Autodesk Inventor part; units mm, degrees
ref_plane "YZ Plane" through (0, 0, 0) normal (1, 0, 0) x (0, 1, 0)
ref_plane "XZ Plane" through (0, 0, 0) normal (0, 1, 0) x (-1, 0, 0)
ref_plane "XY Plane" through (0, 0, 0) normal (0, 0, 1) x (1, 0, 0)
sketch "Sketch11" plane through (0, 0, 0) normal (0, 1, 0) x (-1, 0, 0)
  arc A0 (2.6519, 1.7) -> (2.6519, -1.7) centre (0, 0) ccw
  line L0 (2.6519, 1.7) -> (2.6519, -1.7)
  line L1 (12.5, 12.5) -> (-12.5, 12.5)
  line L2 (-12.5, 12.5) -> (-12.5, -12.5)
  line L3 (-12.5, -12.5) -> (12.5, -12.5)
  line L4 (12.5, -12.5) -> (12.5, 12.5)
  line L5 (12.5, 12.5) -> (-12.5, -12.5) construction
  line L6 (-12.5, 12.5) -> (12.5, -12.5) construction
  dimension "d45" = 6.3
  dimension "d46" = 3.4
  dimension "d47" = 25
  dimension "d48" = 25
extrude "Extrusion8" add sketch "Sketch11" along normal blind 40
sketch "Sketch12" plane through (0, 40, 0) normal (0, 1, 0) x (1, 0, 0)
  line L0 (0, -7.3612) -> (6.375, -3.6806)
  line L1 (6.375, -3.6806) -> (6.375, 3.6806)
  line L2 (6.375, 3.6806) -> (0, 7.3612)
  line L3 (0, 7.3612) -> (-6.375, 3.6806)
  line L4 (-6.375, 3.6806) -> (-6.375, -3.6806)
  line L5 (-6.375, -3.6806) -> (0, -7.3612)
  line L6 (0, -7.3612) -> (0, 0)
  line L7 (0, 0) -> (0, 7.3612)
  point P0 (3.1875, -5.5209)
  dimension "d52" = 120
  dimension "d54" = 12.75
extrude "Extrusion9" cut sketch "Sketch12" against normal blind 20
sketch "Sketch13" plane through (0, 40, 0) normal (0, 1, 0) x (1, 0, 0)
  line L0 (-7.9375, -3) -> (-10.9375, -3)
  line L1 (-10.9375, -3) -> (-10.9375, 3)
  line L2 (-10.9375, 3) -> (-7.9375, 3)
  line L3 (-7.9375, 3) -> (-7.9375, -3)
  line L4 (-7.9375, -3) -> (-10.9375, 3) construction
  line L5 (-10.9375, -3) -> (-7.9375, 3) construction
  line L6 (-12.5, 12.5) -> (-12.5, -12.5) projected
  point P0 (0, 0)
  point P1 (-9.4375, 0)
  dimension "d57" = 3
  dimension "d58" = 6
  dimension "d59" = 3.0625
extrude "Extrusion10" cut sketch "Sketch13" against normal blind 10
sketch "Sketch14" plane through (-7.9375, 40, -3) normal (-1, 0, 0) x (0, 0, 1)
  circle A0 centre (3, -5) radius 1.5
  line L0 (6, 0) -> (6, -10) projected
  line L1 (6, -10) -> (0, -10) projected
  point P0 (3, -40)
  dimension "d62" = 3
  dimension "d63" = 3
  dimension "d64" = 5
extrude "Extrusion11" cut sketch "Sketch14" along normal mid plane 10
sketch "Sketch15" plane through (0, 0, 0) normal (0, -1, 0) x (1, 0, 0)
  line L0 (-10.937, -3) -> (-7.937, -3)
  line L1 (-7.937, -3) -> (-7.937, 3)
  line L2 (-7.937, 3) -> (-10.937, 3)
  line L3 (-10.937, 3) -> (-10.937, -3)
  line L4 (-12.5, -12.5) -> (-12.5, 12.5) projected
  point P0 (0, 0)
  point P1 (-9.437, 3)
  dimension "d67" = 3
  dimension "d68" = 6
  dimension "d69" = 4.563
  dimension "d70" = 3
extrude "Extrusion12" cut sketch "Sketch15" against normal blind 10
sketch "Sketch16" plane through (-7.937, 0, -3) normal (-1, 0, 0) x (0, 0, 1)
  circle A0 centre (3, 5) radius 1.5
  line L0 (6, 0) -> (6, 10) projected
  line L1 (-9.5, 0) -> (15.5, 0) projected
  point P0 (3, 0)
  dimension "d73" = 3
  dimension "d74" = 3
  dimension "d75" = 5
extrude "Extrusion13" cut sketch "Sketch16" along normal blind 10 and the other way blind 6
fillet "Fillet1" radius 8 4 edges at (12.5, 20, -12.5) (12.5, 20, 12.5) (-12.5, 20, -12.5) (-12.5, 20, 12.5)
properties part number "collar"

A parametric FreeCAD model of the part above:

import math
import FreeCAD as App
import Part
import Sketcher
from FreeCAD import Vector
Q = App.Units.Quantity


def edges_at(feature, points):
    """Names of the edges that pass closest to the given points."""
    edges = feature.Shape.Edges
    near = lambda p: min(range(len(edges)), key=lambda i: edges[i].distToShape(Part.Vertex(*p))[0])
    return sorted({f"Edge{near(p) + 1}" for p in points})


def add_polygon(sketch, points):
    """Adds a closed chain of lines whose ends are joined by coincident constraints."""
    first, n = sketch.GeometryCount, len(points)
    for a, b in zip(points, points[1:] + points[:1]):
        sketch.addGeometry(Part.LineSegment(App.Vector(*a, 0), App.Vector(*b, 0)), False)
    for i in range(n):
        sketch.addConstraint(Sketcher.Constraint("Coincident", first + i, 2, first + (i + 1) % n, 1))

doc = App.newDocument("Part")
body = doc.addObject("PartDesign::Body", "Body")

# Sketch on XZ plane
sketch1 = body.newObject("Sketcher::SketchObject", "Sketch")
sketch1.AttachmentSupport = (doc.getObject("XZ_Plane"), [""])
sketch1.MapMode = "FlatFace"
add_polygon(sketch1, [(-12.5, -12.5), (-12.5, 12.5), (12.5, 12.5), (12.5, -12.5)])  # lines 0-3
sketch1.addGeometry(Part.ArcOfCircle(Part.Circle(Vector(0, 0, 0), Vector(0, 0, 1), 3.2), math.radians(-147), math.radians(147)), False)  # 4
sketch1.addGeometry(Part.LineSegment(Vector(-2.7, 1.7, 0), Vector(-2.7, -1.7, 0)), False)  # 5
sketch1.addConstraint([
    Sketcher.Constraint("Coincident", 4, 1, 5, 2),
    Sketcher.Constraint("Coincident", 5, 1, 4, 2),
    Sketcher.Constraint("Vertical", 0),
    Sketcher.Constraint("Horizontal", 1),
    Sketcher.Constraint("Vertical", 2),
    Sketcher.Constraint("Horizontal", 3),
    Sketcher.Constraint("Vertical", 5),
    Sketcher.Constraint("Coincident", 4, 3, -1, 1),
    Sketcher.Constraint("Symmetric", 0, 2, 2, 2, -1, 1),
    Sketcher.Constraint("Equal", 3, 0),
    Sketcher.Constraint("DistanceX", 1, 1, 1, 2, 25.0),
    Sketcher.Constraint("Radius", 4, 3.15),
    Sketcher.Constraint("DistanceY", 5, 2, 5, 1, 3.4),
])
pad1 = body.newObject("PartDesign::Pad", "Pad")
pad1.Profile = sketch1
pad1.Length = 40
pad1.Reversed = True

# Sketch on XZ plane
sketch2 = body.newObject("Sketcher::SketchObject", "Sketch001")
sketch2.AttachmentSupport = (doc.getObject("XZ_Plane"), [""])
sketch2.MapMode = "FlatFace"
sketch2.AttachmentOffset = App.Placement(Vector(0, 0, -40), App.Rotation())
add_polygon(sketch2, [(6, -4), (0, -7), (-6, -4), (-6, 4), (0, 7), (6, 4)])  # lines 0-5
sketch2.addConstraint([
    Sketcher.Constraint("Vertical", 2),
    Sketcher.Constraint("Vertical", 5),
    Sketcher.Constraint("Symmetric", 0, 2, 3, 2, -1, 1),
    Sketcher.Constraint("Symmetric", 1, 2, 4, 2, -1, 1),
    Sketcher.Constraint("PointOnObject", 0, 2, -2),
    Sketcher.Constraint("Parallel", 0, 3),
    Sketcher.Constraint("Horizontal", 2, 2, 4, 2),
    Sketcher.Constraint("Angle", 0, Q("-150 deg")),
    Sketcher.Constraint("DistanceX", 2, 2, 4, 2, 12.75),
    Sketcher.Constraint("DistanceY", 2, 1, 2, 2, 7.3612),
])
pocket1 = body.newObject("PartDesign::Pocket", "Pocket")
pocket1.Profile = sketch2
pocket1.Length = 20
pocket1.Reversed = True

# Sketch on XZ plane
sketch3 = body.newObject("Sketcher::SketchObject", "Sketch002")
sketch3.AttachmentSupport = (doc.getObject("XZ_Plane"), [""])
sketch3.MapMode = "FlatFace"
sketch3.AttachmentOffset = App.Placement(Vector(0, 0, -40), App.Rotation())
add_polygon(sketch3, [(-10.9, 3), (-7.9, 3), (-7.9, -3), (-10.9, -3)])  # lines 0-3
sketch3.addConstraint([
    Sketcher.Constraint("Horizontal", 0),
    Sketcher.Constraint("Vertical", 1),
    Sketcher.Constraint("Horizontal", 2),
    Sketcher.Constraint("Vertical", 3),
    Sketcher.Constraint("DistanceX", 0, 1, 0, 2, 3.0),
    Sketcher.Constraint("DistanceY", 1, 2, 1, 1, 6.0),
    Sketcher.Constraint("DistanceY", -1, 1, 0, 2, 3.0),
    Sketcher.Constraint("DistanceX", 0, 2, -1, 1, 7.9375),
])
pocket2 = body.newObject("PartDesign::Pocket", "Pocket001")
pocket2.Profile = sketch3
pocket2.Length = 10
pocket2.Reversed = True

# Sketch on YZ plane
sketch4 = body.newObject("Sketcher::SketchObject", "Sketch003")
sketch4.AttachmentSupport = (doc.getObject("YZ_Plane"), [""])
sketch4.MapMode = "FlatFace"
sketch4.AttachmentOffset = App.Placement(Vector(0, 0, -7.9375), App.Rotation())
sketch4.addGeometry(Part.Circle(Vector(35, 0, 0), Vector(0, 0, 1), 1.5), False)
sketch4.addConstraint([
    Sketcher.Constraint("PointOnObject", 0, 3, -1),
    Sketcher.Constraint("Diameter", 0, 3.0),
    Sketcher.Constraint("DistanceX", -1, 1, 0, 3, 35.0),
])
pocket3 = body.newObject("PartDesign::Pocket", "Pocket002")
pocket3.Profile = sketch4
pocket3.Length = 10
pocket3.Midplane = True

# Sketch on XZ plane
sketch5 = body.newObject("Sketcher::SketchObject", "Sketch004")
sketch5.AttachmentSupport = (doc.getObject("XZ_Plane"), [""])
sketch5.MapMode = "FlatFace"
add_polygon(sketch5, [(-10.9, 3), (-10.9, -3), (-7.9, -3), (-7.9, 3)])  # lines 0-3
sketch5.addConstraint([
    Sketcher.Constraint("Vertical", 0),
    Sketcher.Constraint("Horizontal", 1),
    Sketcher.Constraint("Vertical", 2),
    Sketcher.Constraint("Horizontal", 3),
    Sketcher.Constraint("DistanceX", 1, 1, 1, 2, 3.0),
    Sketcher.Constraint("DistanceY", 0, 2, 0, 1, 6.0),
    Sketcher.Constraint("DistanceY", 0, 2, -1, 1, 3.0),
    Sketcher.Constraint("DistanceX", 0, 2, -1, 1, 10.937),
])
pocket4 = body.newObject("PartDesign::Pocket", "Pocket003")
pocket4.Profile = sketch5
pocket4.Length = 10

# Sketch on YZ plane
sketch6 = body.newObject("Sketcher::SketchObject", "Sketch005")
sketch6.AttachmentSupport = (doc.getObject("YZ_Plane"), [""])
sketch6.MapMode = "FlatFace"
sketch6.AttachmentOffset = App.Placement(Vector(0, 0, -7.937), App.Rotation())
sketch6.addGeometry(Part.Circle(Vector(5, 0, 0), Vector(0, 0, 1), 1.5), False)
sketch6.addConstraint([
    Sketcher.Constraint("PointOnObject", 0, 3, -1),
    Sketcher.Constraint("Diameter", 0, 3.0),
    Sketcher.Constraint("DistanceX", -1, 1, 0, 3, 5.0),
])
pocket5 = body.newObject("PartDesign::Pocket", "Pocket004")
pocket5.Profile = sketch6
pocket5.Type = "TwoLengths"
pocket5.Length = 10
pocket5.Length2 = 6
doc.recompute()

fillet = body.newObject("PartDesign::Fillet", "Fillet")
fillet.Base = (pocket5, edges_at(pocket5, [
    (12.5, 20, -12.5),
    (12.5, 20, 12.5),
    (-12.5, 20, -12.5),
    (-12.5, 20, 12.5),
]))
fillet.Radius = 8

doc.recompute()
